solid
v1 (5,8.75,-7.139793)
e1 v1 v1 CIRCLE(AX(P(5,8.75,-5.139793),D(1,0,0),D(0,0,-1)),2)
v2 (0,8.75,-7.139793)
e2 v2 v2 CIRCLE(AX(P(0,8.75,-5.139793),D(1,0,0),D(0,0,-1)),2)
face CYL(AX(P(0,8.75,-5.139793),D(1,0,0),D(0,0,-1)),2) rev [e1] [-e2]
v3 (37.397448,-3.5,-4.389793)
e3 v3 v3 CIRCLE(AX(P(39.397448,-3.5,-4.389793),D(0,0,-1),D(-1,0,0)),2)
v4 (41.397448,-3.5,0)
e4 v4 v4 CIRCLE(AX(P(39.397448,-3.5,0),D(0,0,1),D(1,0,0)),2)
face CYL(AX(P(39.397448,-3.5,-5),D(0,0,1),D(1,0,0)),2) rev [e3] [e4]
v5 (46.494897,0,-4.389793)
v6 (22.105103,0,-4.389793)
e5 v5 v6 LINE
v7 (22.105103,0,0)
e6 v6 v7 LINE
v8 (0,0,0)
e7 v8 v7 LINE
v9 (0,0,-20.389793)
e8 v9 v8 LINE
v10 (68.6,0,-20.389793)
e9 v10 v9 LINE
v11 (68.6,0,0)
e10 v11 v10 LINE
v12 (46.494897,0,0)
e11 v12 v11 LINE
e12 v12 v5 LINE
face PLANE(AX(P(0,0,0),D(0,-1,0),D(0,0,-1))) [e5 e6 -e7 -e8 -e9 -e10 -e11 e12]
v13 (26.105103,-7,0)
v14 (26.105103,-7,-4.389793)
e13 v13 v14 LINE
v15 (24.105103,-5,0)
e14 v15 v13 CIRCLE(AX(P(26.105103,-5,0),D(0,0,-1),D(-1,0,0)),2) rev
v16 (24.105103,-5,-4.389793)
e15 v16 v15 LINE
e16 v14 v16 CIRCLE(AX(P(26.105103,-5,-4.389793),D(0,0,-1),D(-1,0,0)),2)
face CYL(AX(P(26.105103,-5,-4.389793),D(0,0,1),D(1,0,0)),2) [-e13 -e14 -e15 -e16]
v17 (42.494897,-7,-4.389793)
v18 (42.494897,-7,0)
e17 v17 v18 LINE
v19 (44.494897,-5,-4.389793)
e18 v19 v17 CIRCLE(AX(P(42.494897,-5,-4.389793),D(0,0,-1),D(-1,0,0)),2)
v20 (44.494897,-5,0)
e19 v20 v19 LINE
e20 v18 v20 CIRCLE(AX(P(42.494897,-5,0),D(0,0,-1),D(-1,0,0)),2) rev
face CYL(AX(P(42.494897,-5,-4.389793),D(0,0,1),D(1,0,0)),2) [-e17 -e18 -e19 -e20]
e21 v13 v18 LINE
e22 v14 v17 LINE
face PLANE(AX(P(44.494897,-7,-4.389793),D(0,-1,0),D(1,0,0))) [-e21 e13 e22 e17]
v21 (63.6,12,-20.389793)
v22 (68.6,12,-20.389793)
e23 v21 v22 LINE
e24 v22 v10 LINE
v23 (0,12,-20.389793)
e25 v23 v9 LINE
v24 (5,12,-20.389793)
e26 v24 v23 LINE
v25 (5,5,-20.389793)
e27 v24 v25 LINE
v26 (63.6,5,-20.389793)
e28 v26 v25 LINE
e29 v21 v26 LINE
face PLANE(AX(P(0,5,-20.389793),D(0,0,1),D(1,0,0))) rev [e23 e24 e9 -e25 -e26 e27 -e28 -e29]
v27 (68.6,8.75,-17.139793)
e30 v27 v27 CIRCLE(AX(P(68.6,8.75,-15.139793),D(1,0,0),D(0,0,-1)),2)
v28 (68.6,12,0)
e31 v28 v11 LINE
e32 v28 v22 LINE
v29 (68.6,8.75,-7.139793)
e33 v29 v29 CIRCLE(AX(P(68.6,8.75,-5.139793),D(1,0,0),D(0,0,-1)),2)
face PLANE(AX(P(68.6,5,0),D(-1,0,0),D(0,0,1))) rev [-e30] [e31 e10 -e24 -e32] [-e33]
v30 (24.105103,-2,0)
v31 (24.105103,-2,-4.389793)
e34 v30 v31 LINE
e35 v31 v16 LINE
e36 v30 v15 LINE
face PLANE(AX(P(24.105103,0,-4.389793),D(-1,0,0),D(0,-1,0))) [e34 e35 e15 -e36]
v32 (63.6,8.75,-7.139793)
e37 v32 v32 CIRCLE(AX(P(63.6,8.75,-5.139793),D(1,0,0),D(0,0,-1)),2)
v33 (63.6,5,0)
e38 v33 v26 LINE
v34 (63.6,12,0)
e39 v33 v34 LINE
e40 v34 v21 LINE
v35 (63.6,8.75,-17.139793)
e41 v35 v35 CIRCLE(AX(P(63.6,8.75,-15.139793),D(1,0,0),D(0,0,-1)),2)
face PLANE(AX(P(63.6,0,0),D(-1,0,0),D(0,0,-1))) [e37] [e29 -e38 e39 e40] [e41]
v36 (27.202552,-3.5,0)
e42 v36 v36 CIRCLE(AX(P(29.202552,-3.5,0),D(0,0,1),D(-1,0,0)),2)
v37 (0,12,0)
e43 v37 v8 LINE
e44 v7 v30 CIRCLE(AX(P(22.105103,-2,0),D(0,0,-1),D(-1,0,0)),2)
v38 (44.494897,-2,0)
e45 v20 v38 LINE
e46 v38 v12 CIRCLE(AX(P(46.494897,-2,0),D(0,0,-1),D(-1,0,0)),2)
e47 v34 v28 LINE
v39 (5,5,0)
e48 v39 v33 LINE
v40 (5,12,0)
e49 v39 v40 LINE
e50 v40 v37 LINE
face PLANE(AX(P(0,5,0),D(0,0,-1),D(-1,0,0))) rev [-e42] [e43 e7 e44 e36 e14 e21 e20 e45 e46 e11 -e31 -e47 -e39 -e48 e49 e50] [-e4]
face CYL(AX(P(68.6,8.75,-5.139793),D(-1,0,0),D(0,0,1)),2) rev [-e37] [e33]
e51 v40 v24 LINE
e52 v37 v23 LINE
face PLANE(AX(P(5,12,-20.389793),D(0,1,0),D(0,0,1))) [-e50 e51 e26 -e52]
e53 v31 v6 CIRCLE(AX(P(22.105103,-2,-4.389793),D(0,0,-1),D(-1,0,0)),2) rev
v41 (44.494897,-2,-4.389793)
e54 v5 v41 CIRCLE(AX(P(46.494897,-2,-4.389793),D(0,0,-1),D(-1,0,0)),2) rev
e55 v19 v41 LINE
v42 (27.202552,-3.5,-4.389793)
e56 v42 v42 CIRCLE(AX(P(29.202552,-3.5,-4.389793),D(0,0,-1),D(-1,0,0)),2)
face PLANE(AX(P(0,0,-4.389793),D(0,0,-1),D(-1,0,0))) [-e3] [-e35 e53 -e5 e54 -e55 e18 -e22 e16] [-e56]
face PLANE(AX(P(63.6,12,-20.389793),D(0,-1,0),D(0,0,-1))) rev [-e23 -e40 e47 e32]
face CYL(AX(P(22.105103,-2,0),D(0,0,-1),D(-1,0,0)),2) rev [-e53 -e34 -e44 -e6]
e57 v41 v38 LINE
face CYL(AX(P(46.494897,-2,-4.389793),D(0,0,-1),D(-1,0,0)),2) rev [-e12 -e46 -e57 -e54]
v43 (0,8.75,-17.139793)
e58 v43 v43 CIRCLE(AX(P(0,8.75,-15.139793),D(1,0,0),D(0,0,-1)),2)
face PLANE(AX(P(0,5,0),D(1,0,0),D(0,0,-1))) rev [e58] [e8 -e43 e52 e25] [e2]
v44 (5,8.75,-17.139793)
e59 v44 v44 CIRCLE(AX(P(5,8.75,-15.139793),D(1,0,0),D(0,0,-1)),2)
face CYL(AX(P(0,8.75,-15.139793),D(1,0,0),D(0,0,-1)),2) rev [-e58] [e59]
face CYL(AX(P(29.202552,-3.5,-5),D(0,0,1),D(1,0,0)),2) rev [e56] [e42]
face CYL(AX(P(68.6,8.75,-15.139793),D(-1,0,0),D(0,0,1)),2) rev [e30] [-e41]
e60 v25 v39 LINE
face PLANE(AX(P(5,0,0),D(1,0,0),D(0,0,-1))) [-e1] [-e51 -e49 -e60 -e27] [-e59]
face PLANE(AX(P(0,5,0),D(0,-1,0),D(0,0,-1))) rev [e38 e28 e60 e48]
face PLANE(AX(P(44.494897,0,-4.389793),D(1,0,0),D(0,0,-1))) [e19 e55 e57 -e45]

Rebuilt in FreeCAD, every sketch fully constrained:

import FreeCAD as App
import Part
import Sketcher

V = App.Vector
Q = App.Units.Quantity


def edges_at(feature, points):
    """Names of the edges that pass closest to the given points."""
    edges = feature.Shape.Edges
    near = lambda p: min(range(len(edges)), key=lambda i: edges[i].distToShape(Part.Vertex(*p))[0])
    return sorted({f"Edge{near(p) + 1}" for p in points})

doc = App.newDocument("Part")
params = doc.addObject("Spreadsheet::Sheet", "Params")
for row, (alias, value) in enumerate([
    ("sketch1_width", "68.6 mm"),
    ("pad1_length", "5 mm"),
    ("sketch2_width", "12 mm"),
    ("pad2_length", "5 mm"),
    ("sketch3_diameter", "4 mm"),
    ("pocket1_length", "5 mm"),
    ("sketch4_height", "7 mm"),
    ("pad3_length", "4.389793 mm"),
    ("sketch5_diameter", "4 mm"),
    ("pocket2_length", "5 mm"),
    ("fillet_radius", "2 mm"),
], start=1):
    params.set(f"A{row}", alias)
    params.set(f"B{row}", "=" + value)
    params.setAlias(f"B{row}", alias)

body = doc.addObject("PartDesign::Body", "Body")

# Sketch on XZ plane
sketch1 = body.newObject("Sketcher::SketchObject", "Sketch")
sketch1.AttachmentSupport = (doc.getObject("XZ_Plane"), [""])
sketch1.MapMode = "FlatFace"
sketch1.addGeometry([
    Part.LineSegment(V(0, -20, 0), V(0, 0, 0)),
    Part.LineSegment(V(0, 0, 0), V(69, 0, 0)),
    Part.LineSegment(V(69, 0, 0), V(69, -20, 0)),
    Part.LineSegment(V(69, -20, 0), V(0, -20, 0)),
], False)
sketch1.addConstraint([
    Sketcher.Constraint("Coincident", 0, 2, 1, 1),
    Sketcher.Constraint("Coincident", 1, 2, 2, 1),
    Sketcher.Constraint("Coincident", 2, 2, 3, 1),
    Sketcher.Constraint("Coincident", 3, 2, 0, 1),
    Sketcher.Constraint("Vertical", 0),
    Sketcher.Constraint("Horizontal", 1),
    Sketcher.Constraint("Vertical", 2),
    Sketcher.Constraint("Horizontal", 3),
    Sketcher.Constraint("Coincident", 0, 2, -1, 1),
    Sketcher.Constraint("DistanceX", 1, 1, 1, 2, Q("68.6 mm")),
    Sketcher.Constraint("DistanceY", 0, 1, 0, 2, Q("20.389793 mm")),
])
sketch1.setExpression("Constraints[9]", "Params.sketch1_width")
pad1 = body.newObject("PartDesign::Pad", "Pad")
pad1.Profile = sketch1
pad1.setExpression("Length", "Params.pad1_length")
pad1.Reversed = True

# Sketch on YZ plane
sketch2 = body.newObject("Sketcher::SketchObject", "Sketch001")
sketch2.AttachmentSupport = (doc.getObject("YZ_Plane"), [""])
sketch2.MapMode = "FlatFace"
sketch2.addGeometry([
    Part.LineSegment(V(12, -20, 0), V(0, -20, 0)),
    Part.LineSegment(V(0, -20, 0), V(0, 0, 0)),
    Part.LineSegment(V(0, 0, 0), V(12, 0, 0)),
    Part.LineSegment(V(12, 0, 0), V(12, -20, 0)),
], False)
sketch2.addConstraint([
    Sketcher.Constraint("Coincident", 0, 2, 1, 1),
    Sketcher.Constraint("Coincident", 1, 2, 2, 1),
    Sketcher.Constraint("Coincident", 2, 2, 3, 1),
    Sketcher.Constraint("Coincident", 3, 2, 0, 1),
    Sketcher.Constraint("Horizontal", 0),
    Sketcher.Constraint("Vertical", 1),
    Sketcher.Constraint("Horizontal", 2),
    Sketcher.Constraint("Vertical", 3),
    Sketcher.Constraint("Coincident", 1, 2, -1, 1),
    Sketcher.Constraint("DistanceX", 0, 2, 0, 1, Q("12 mm")),
    Sketcher.Constraint("DistanceY", 1, 1, 1, 2, Q("20.389793 mm")),
])
sketch2.setExpression("Constraints[9]", "Params.sketch2_width")
pad2 = body.newObject("PartDesign::Pad", "Pad001")
pad2.Profile = sketch2
pad2.setExpression("Length", "Params.pad2_length")

# Sketch on YZ plane
sketch3 = body.newObject("Sketcher::SketchObject", "Sketch002")
sketch3.AttachmentSupport = (doc.getObject("YZ_Plane"), [""])
sketch3.MapMode = "FlatFace"
sketch3.AttachmentOffset = App.Placement(V(0, 0, 5), App.Rotation())
sketch3.addGeometry([
    Part.Circle(V(8.8, -15.1, 0), V(0, 0, 1), 2),
    Part.Circle(V(8.8, -5.1, 0), V(0, 0, 1), 2),
], False)
sketch3.addConstraint([
    Sketcher.Constraint("Equal", 0, 1),
    Sketcher.Constraint("Vertical", 0, 3, 1, 3),
    Sketcher.Constraint("Diameter", 0, Q("4 mm")),
    Sketcher.Constraint("DistanceY", 0, 3, 1, 3, Q("10 mm")),
    Sketcher.Constraint("DistanceX", -1, 1, 0, 3, Q("8.75 mm")),
    Sketcher.Constraint("DistanceY", 0, 3, -1, 1, Q("15.139793 mm")),
])
sketch3.setExpression("Constraints[2]", "Params.sketch3_diameter")
pocket1 = body.newObject("PartDesign::Pocket", "Pocket")
pocket1.Profile = sketch3
pocket1.setExpression("Length", "Params.pocket1_length")
doc.recompute()

datumplane = body.newObject("PartDesign::Plane", "DatumPlane")
datumplane.AttachmentSupport = (doc.getObject("YZ_Plane"), [""])
datumplane.MapMode = "FlatFace"
datumplane.AttachmentOffset = App.Placement(V(0, 0, 34.3), App.Rotation())
mirrored = body.newObject("PartDesign::Mirrored", "Mirrored")
mirrored.Originals = [pad2, pocket1]
mirrored.MirrorPlane = (datumplane, [""])
body.Tip = mirrored

# Sketch on XY plane
sketch4 = body.newObject("Sketcher::SketchObject", "Sketch003")
sketch4.AttachmentSupport = (doc.getObject("XY_Plane"), [""])
sketch4.MapMode = "FlatFace"
sketch4.addGeometry([
    Part.LineSegment(V(24, 0, 0), V(24, -7, 0)),
    Part.LineSegment(V(24, -7, 0), V(44, -7, 0)),
    Part.LineSegment(V(44, -7, 0), V(44, 0, 0)),
    Part.LineSegment(V(44, 0, 0), V(24, 0, 0)),
], False)
sketch4.addConstraint([
    Sketcher.Constraint("Coincident", 0, 2, 1, 1),
    Sketcher.Constraint("Coincident", 1, 2, 2, 1),
    Sketcher.Constraint("Coincident", 2, 2, 3, 1),
    Sketcher.Constraint("Coincident", 3, 2, 0, 1),
    Sketcher.Constraint("Vertical", 0),
    Sketcher.Constraint("Horizontal", 1),
    Sketcher.Constraint("Vertical", 2),
    Sketcher.Constraint("Horizontal", 3),
    Sketcher.Constraint("PointOnObject", 2, 2, -1),
    Sketcher.Constraint("DistanceY", 0, 2, 0, 1, Q("7 mm")),
    Sketcher.Constraint("DistanceX", 1, 1, 1, 2, Q("20.389793 mm")),
    Sketcher.Constraint("DistanceX", -1, 1, 0, 2, Q("24.105103 mm")),
])
sketch4.setExpression("Constraints[9]", "Params.sketch4_height")
pad3 = body.newObject("PartDesign::Pad", "Pad002")
pad3.Profile = sketch4
pad3.setExpression("Length", "Params.pad3_length")
pad3.Reversed = True

# Sketch on XY plane
sketch5 = body.newObject("Sketcher::SketchObject", "Sketch004")
sketch5.AttachmentSupport = (doc.getObject("XY_Plane"), [""])
sketch5.MapMode = "FlatFace"
sketch5.addGeometry([
    Part.Circle(V(39.4, -3.5, 0), V(0, 0, 1), 2),
    Part.Circle(V(29.2, -3.5, 0), V(0, 0, 1), 2),
], False)
sketch5.addConstraint([
    Sketcher.Constraint("Equal", 0, 1),
    Sketcher.Constraint("Horizontal", 0, 3, 1, 3),
    Sketcher.Constraint("Diameter", 0, Q("4 mm")),
    Sketcher.Constraint("DistanceY", 0, 3, -1, 1, Q("3.5 mm")),
    Sketcher.Constraint("DistanceX", -1, 1, 0, 3, Q("39.397448 mm")),
    Sketcher.Constraint("DistanceX", -1, 1, 1, 3, Q("29.202552 mm")),
])
sketch5.setExpression("Constraints[2]", "Params.sketch5_diameter")
pocket2 = body.newObject("PartDesign::Pocket", "Pocket001")
pocket2.Profile = sketch5
pocket2.setExpression("Length", "Params.pocket2_length")
doc.recompute()

fillet = body.newObject("PartDesign::Fillet", "Fillet")
fillet.Base = (pocket2, edges_at(pocket2, [
    (44.495, 0, -2.195),
    (44.495, -7, -2.195),
    (24.105, -7, -2.195),
    (24.105, 0, -2.195),
]))
fillet.setExpression("Radius", "Params.fillet_radius")

doc.recompute()
